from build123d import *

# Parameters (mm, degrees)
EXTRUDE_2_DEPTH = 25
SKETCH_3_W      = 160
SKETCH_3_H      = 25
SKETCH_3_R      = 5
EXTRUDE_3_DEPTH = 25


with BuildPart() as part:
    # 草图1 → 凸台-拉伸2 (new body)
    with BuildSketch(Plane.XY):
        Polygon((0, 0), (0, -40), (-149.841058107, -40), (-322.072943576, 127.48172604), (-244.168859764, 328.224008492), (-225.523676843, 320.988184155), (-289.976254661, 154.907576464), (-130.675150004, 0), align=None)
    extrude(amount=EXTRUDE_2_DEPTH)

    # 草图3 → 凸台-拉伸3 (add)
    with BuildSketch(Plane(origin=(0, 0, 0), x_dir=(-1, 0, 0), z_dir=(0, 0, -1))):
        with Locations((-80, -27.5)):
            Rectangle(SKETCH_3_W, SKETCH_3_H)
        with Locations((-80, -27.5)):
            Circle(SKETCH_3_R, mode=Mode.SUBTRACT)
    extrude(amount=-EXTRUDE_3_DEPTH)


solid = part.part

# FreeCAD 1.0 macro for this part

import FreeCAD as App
import Part
import Sketcher
Q = App.Units.Quantity


def add_polygon(sketch, points):
    """Adds a closed chain of lines whose ends are joined by coincident constraints."""
    first, n = sketch.GeometryCount, len(points)
    for a, b in zip(points, points[1:] + points[:1]):
        sketch.addGeometry(Part.LineSegment(App.Vector(*a, 0), App.Vector(*b, 0)), False)
    for i in range(n):
        sketch.addConstraint(Sketcher.Constraint("Coincident", first + i, 2, first + (i + 1) % n, 1))

doc = App.newDocument("Part")
body = doc.addObject("PartDesign::Body", "Body")

# Sketch on XY plane
sketch1 = body.newObject("Sketcher::SketchObject", "Sketch")
sketch1.AttachmentSupport = (doc.getObject("XY_Plane"), [""])
sketch1.MapMode = "FlatFace"
add_polygon(sketch1, [(0, -40), (0, 0), (-130.67515, 0), (-289.976255, 154.907576), (-225.523677, 320.988184), (-244.16886, 328.224008), (-322.072944, 127.481726), (-149.841058, -40)])  # lines 0-7
sketch1.addConstraint([
    Sketcher.Constraint("Vertical", 0),
    Sketcher.Constraint("Horizontal", 1),
    Sketcher.Constraint("Horizontal", 7),
    Sketcher.Constraint("Coincident", 0, 2, -1, 1),
    Sketcher.Constraint("Perpendicular", 3, 4),
    Sketcher.Constraint("Perpendicular", 4, 5),
    Sketcher.Constraint("Parallel", 2, 6),
    Sketcher.Constraint("DistanceY", 0, 1, 0, 2, Q("40 mm")),
    Sketcher.Constraint("Distance", 4, Q("20 mm")),
    Sketcher.Constraint("DistanceX", 1, 2, 1, 1, Q("130.67515 mm")),
    Sketcher.Constraint("DistanceX", 7, 1, 7, 2, Q("149.841058 mm")),
    Sketcher.Constraint("Distance", 2, Q("222.200808 mm")),
    Sketcher.Constraint("Distance", 6, Q("240.23728 mm")),
    Sketcher.Constraint("DistanceX", 4, 2, -1, 1, Q("244.16886 mm")),
    Sketcher.Constraint("DistanceY", -1, 1, 4, 2, Q("328.224008 mm")),
])
pad1 = body.newObject("PartDesign::Pad", "Pad")
pad1.Profile = sketch1
pad1.Length = 25

# Sketch on XY plane
sketch2 = body.newObject("Sketcher::SketchObject", "Sketch001")
sketch2.AttachmentSupport = (doc.getObject("XY_Plane"), [""])
sketch2.MapMode = "FlatFace"
add_polygon(sketch2, [(160, -15), (160, -40), (0, -40), (0, -15)])  # lines 0-3
sketch2.addGeometry(Part.Circle(App.Vector(80, -27.5, 0), App.Vector(0, 0, 1), 5), False)  # 4
sketch2.addConstraint([
    Sketcher.Constraint("Vertical", 0),
    Sketcher.Constraint("Horizontal", 1),
    Sketcher.Constraint("Vertical", 2),
    Sketcher.Constraint("Horizontal", 3),
    Sketcher.Constraint("PointOnObject", 1, 2, -2),
    Sketcher.Constraint("Diameter", 4, Q("10 mm")),
    Sketcher.Constraint("DistanceX", 1, 2, 1, 1, Q("160 mm")),
    Sketcher.Constraint("DistanceY", 0, 2, 0, 1, Q("25 mm")),
    Sketcher.Constraint("DistanceX", -1, 1, 4, 3, Q("80 mm")),
    Sketcher.Constraint("DistanceY", 0, 2, -1, 1, Q("40 mm")),
    Sketcher.Constraint("DistanceY", 4, 3, -1, 1, Q("27.5 mm")),
])
pad2 = body.newObject("PartDesign::Pad", "Pad001")
pad2.Profile = sketch2
pad2.Length = 25

doc.recompute()
